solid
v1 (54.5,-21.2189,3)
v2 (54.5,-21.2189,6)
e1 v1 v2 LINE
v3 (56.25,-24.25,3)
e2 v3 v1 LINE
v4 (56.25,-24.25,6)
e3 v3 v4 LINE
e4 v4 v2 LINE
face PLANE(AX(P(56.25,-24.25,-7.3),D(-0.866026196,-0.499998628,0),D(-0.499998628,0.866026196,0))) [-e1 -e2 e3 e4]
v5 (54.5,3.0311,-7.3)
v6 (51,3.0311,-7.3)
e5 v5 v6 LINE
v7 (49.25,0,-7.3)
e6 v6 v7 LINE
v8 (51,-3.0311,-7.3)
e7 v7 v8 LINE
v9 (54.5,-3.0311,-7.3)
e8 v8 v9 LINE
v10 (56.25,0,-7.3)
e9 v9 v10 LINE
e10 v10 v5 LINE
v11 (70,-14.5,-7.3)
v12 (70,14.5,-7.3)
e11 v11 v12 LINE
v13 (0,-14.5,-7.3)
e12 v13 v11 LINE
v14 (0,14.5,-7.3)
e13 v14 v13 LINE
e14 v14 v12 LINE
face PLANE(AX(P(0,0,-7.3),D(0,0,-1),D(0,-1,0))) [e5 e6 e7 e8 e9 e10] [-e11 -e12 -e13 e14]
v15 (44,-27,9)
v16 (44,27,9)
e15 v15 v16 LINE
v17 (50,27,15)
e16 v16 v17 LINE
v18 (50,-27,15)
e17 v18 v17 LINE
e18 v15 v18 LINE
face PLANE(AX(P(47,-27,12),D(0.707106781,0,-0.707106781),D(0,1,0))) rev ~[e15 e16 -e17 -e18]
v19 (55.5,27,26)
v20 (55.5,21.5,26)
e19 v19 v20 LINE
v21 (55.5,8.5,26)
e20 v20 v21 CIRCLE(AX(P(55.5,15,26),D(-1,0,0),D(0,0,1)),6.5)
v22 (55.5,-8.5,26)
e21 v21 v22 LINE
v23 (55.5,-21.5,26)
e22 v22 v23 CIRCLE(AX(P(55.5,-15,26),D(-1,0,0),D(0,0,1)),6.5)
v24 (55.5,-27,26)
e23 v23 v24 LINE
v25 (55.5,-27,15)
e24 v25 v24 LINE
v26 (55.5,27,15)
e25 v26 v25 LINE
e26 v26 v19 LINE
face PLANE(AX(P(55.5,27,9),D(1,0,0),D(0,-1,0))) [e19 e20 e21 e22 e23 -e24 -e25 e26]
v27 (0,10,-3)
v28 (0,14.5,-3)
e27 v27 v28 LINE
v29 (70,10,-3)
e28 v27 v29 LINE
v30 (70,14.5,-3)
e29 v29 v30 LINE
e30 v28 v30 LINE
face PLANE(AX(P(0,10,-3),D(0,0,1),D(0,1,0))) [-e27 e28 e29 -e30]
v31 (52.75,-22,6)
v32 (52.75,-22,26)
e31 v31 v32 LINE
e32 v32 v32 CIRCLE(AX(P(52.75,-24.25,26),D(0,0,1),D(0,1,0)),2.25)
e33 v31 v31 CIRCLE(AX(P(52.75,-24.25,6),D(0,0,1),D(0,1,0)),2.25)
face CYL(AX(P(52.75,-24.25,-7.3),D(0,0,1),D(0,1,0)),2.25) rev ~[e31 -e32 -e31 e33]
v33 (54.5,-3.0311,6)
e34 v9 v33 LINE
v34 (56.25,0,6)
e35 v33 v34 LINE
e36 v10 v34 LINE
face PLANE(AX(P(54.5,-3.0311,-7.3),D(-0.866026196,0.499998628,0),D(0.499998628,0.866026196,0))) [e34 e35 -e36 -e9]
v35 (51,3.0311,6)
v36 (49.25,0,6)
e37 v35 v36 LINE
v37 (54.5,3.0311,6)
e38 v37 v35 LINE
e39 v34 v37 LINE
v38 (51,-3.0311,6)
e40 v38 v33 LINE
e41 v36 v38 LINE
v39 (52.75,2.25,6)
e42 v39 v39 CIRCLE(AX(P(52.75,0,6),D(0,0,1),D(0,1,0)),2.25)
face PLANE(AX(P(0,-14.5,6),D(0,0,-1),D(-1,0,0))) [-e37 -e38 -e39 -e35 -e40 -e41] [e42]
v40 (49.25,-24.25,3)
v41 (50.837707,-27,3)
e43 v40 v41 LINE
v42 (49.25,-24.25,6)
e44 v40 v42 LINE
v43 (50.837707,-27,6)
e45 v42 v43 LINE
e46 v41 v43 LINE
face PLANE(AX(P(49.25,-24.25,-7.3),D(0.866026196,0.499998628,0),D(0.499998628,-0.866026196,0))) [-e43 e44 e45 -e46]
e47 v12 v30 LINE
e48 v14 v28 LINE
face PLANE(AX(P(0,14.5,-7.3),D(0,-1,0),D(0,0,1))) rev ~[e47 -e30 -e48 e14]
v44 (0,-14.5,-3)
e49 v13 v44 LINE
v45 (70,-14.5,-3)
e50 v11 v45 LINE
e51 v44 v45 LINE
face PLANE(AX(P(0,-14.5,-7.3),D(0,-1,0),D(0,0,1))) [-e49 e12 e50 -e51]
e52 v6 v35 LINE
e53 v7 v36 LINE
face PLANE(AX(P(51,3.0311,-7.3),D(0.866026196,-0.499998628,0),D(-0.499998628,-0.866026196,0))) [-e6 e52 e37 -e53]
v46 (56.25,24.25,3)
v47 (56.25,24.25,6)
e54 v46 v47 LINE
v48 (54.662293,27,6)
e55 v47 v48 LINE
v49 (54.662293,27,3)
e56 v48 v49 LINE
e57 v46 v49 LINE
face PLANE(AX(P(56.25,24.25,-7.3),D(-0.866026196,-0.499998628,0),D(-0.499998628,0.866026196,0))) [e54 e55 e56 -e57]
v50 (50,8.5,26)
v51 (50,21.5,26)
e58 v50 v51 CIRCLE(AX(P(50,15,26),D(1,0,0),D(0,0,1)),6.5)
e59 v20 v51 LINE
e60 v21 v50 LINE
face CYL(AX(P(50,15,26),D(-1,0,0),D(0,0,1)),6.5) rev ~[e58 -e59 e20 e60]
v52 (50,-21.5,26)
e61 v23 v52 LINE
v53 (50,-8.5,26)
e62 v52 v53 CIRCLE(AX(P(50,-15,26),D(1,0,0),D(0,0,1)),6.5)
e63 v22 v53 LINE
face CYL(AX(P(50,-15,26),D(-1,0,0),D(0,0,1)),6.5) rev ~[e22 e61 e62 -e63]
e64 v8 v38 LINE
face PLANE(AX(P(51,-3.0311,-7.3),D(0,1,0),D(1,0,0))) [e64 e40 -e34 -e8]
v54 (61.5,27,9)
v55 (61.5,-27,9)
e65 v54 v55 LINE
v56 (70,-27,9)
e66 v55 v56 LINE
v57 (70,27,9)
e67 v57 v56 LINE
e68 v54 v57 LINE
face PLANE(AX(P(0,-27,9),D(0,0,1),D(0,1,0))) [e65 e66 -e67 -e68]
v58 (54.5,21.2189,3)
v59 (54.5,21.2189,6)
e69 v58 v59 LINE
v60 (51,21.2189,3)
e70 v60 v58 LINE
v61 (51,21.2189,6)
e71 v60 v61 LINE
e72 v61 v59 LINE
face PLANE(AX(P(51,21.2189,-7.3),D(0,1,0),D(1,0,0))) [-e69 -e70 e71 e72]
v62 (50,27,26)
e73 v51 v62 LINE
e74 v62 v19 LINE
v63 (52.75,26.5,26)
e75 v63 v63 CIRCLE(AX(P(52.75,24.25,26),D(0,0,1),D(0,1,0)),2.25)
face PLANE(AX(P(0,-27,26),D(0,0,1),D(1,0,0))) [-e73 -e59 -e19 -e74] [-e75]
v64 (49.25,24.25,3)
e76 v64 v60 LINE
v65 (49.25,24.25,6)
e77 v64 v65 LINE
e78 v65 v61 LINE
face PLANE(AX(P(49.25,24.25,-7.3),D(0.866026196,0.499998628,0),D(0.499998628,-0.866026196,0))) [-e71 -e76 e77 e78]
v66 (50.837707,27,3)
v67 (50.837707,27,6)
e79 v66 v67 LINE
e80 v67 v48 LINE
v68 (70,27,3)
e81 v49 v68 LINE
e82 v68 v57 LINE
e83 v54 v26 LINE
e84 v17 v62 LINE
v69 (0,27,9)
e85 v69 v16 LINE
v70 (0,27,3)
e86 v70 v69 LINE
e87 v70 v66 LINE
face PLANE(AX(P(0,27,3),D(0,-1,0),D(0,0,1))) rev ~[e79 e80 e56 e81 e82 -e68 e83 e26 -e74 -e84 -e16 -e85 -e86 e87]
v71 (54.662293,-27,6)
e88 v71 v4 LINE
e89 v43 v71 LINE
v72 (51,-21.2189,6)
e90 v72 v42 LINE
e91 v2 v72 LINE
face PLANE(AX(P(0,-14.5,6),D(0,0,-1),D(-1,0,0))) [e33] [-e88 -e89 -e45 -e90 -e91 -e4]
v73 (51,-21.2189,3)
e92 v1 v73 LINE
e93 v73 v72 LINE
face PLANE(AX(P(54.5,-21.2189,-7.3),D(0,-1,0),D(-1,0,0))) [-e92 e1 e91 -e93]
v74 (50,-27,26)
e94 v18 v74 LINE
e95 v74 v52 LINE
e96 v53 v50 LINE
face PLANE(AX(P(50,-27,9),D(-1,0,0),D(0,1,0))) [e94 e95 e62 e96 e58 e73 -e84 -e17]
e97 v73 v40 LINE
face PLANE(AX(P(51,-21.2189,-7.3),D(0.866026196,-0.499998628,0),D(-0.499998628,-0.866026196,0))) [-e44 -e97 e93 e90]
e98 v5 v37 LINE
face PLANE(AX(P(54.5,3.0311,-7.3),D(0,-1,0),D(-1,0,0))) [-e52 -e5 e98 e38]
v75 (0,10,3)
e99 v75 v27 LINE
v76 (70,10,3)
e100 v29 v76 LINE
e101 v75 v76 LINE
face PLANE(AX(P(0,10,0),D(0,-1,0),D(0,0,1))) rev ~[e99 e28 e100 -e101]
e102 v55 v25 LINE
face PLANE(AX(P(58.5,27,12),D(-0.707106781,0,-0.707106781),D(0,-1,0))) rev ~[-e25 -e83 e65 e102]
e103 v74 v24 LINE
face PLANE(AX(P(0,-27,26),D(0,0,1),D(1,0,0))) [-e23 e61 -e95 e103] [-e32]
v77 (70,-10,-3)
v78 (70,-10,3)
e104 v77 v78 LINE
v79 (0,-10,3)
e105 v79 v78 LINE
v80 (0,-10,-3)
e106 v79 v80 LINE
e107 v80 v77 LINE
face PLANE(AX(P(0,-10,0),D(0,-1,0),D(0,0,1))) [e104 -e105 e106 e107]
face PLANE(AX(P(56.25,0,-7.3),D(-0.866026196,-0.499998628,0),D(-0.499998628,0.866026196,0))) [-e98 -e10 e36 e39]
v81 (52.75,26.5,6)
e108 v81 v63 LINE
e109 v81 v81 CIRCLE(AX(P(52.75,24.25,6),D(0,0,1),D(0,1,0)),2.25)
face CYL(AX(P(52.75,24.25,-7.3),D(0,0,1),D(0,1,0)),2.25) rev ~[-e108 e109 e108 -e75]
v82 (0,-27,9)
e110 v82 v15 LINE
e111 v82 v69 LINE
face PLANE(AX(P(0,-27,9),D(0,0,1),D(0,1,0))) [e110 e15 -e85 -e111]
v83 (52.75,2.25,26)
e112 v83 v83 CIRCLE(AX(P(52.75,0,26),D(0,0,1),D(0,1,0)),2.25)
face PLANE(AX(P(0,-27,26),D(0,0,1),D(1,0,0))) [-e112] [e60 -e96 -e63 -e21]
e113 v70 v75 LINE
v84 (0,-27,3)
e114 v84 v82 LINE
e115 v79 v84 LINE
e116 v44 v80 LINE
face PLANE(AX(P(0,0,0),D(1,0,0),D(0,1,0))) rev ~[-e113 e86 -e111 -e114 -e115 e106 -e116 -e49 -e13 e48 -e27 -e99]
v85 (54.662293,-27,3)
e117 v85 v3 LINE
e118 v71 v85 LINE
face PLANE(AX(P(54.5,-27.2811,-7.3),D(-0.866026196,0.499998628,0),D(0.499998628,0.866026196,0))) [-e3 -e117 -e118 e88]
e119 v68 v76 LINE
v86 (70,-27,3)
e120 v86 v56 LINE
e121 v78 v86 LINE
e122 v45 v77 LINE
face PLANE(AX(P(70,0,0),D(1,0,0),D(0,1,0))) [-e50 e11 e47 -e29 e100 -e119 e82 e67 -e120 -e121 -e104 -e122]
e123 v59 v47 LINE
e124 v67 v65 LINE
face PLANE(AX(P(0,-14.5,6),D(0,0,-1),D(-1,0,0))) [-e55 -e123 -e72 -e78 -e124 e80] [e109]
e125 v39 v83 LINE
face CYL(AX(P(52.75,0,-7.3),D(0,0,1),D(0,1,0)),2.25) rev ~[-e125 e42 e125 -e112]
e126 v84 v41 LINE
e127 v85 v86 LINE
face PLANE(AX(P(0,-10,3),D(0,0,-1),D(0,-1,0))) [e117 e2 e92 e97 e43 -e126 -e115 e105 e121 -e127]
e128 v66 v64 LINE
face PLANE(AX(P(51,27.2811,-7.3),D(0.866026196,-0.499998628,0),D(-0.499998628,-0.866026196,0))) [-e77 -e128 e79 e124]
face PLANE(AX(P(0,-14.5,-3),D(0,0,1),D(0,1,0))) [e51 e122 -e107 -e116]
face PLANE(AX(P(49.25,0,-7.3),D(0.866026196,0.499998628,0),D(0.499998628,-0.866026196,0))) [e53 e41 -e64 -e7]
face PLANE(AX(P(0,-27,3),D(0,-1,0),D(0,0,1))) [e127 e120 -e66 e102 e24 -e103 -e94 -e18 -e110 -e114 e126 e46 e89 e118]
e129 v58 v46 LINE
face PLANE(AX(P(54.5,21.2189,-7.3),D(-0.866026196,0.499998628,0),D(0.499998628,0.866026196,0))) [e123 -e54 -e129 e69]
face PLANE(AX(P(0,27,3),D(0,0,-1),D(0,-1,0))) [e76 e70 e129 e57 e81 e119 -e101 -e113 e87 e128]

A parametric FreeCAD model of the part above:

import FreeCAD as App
import Part
import Sketcher

V = App.Vector
Q = App.Units.Quantity


def edges_at(feature, points):
    """Names of the edges that pass closest to the given points."""
    edges = feature.Shape.Edges
    near = lambda p: min(range(len(edges)), key=lambda i: edges[i].distToShape(Part.Vertex(*p))[0])
    return sorted({f"Edge{near(p) + 1}" for p in points})

doc = App.newDocument("Part")
body = doc.addObject("PartDesign::Body", "Body")

# Sketch on YZ plane
sketch1 = doc.addObject("Sketcher::SketchObject", "Sketch")
body.addObject(sketch1)
sketch1.AttachmentSupport = (doc.YZ_Plane, [""])
sketch1.MapMode = "FlatFace"
sketch1.addGeometry([
    Part.LineSegment(V(-10, 3, 0), V(-10, -3, 0)),  # 0
    Part.LineSegment(V(-10, -3, 0), V(-14.5, -3, 0)),  # 1
    Part.LineSegment(V(-14.5, -3, 0), V(-14.5, -7.3, 0)),  # 2
    Part.LineSegment(V(-14.5, -7.3, 0), V(14.5, -7.3, 0)),  # 3
    Part.LineSegment(V(14.5, -7.3, 0), V(14.5, -3, 0)),  # 4
    Part.LineSegment(V(14.5, -3, 0), V(10, -3, 0)),  # 5
    Part.LineSegment(V(10, -3, 0), V(10, 3, 0)),  # 6
    Part.LineSegment(V(10, 3, 0), V(27, 3, 0)),  # 7
    Part.LineSegment(V(27, 3, 0), V(27, 9, 0)),  # 8
    Part.LineSegment(V(27, 9, 0), V(-27, 9, 0)),  # 9
    Part.LineSegment(V(-27, 9, 0), V(-27, 3, 0)),  # 10
    Part.LineSegment(V(-27, 3, 0), V(-10, 3, 0)),  # 11
], False)
sketch1.addConstraint([
    Sketcher.Constraint("Coincident", 0, 2, 1, 1),
    Sketcher.Constraint("Coincident", 1, 2, 2, 1),
    Sketcher.Constraint("Coincident", 2, 2, 3, 1),
    Sketcher.Constraint("Coincident", 3, 2, 4, 1),
    Sketcher.Constraint("Coincident", 4, 2, 5, 1),
    Sketcher.Constraint("Coincident", 5, 2, 6, 1),
    Sketcher.Constraint("Coincident", 6, 2, 7, 1),
    Sketcher.Constraint("Coincident", 7, 2, 8, 1),
    Sketcher.Constraint("Coincident", 8, 2, 9, 1),
    Sketcher.Constraint("Coincident", 9, 2, 10, 1),
    Sketcher.Constraint("Coincident", 10, 2, 11, 1),
    Sketcher.Constraint("Coincident", 11, 2, 0, 1),
    Sketcher.Constraint("Vertical", 0),
    Sketcher.Constraint("Horizontal", 1),
    Sketcher.Constraint("Vertical", 2),
    Sketcher.Constraint("Horizontal", 3),
    Sketcher.Constraint("Vertical", 4),
    Sketcher.Constraint("Horizontal", 5),
    Sketcher.Constraint("Vertical", 6),
    Sketcher.Constraint("Horizontal", 7),
    Sketcher.Constraint("Vertical", 8),
    Sketcher.Constraint("Horizontal", 9),
    Sketcher.Constraint("Vertical", 10),
    Sketcher.Constraint("Horizontal", 11),
    Sketcher.Constraint("Symmetric", 0, 2, 6, 2, -1, 1),
    Sketcher.Constraint("Symmetric", 1, 2, 4, 2, -2),
    Sketcher.Constraint("Symmetric", 7, 2, 10, 2, -2),
    Sketcher.Constraint("Equal", 6, 8),
    Sketcher.Constraint("DistanceY", 0, 2, 0, 1, 6.0),
    Sketcher.Constraint("DistanceY", 2, 2, 2, 1, 4.3),
    Sketcher.Constraint("DistanceX", 0, 2, -1, 1, 10.0),
    Sketcher.Constraint("DistanceX", -1, 1, 7, 2, 27.0),
    Sketcher.Constraint("DistanceX", 1, 2, -1, 1, 14.5),
])
pad1 = doc.addObject("PartDesign::Pad", "Pad")
body.addObject(pad1)
pad1.Profile = sketch1
pad1.Length = 70

# Sketch on XY plane
sketch2 = doc.addObject("Sketcher::SketchObject", "Sketch001")
body.addObject(sketch2)
sketch2.AttachmentSupport = (doc.XY_Plane, [""])
sketch2.MapMode = "FlatFace"
sketch2.AttachmentOffset = App.Placement(V(0, 0, 9), App.Rotation())
sketch2.addGeometry([
    Part.LineSegment(V(50, 27, 0), V(50, -27, 0)),
    Part.LineSegment(V(50, -27, 0), V(56, -27, 0)),
    Part.LineSegment(V(56, -27, 0), V(56, 27, 0)),
    Part.LineSegment(V(56, 27, 0), V(50, 27, 0)),
], False)
sketch2.addConstraint([
    Sketcher.Constraint("Coincident", 0, 2, 1, 1),
    Sketcher.Constraint("Coincident", 1, 2, 2, 1),
    Sketcher.Constraint("Coincident", 2, 2, 3, 1),
    Sketcher.Constraint("Coincident", 3, 2, 0, 1),
    Sketcher.Constraint("Vertical", 0),
    Sketcher.Constraint("Horizontal", 1),
    Sketcher.Constraint("Vertical", 2),
    Sketcher.Constraint("Horizontal", 3),
    Sketcher.Constraint("DistanceX", 1, 1, 1, 2, 5.5),
    Sketcher.Constraint("DistanceY", 0, 2, 0, 1, 54.0),
    Sketcher.Constraint("DistanceX", -1, 1, 0, 2, 50.0),
    Sketcher.Constraint("DistanceY", 0, 2, -1, 1, 27.0),
])
pad2 = doc.addObject("PartDesign::Pad", "Pad001")
body.addObject(pad2)
pad2.Profile = sketch2
pad2.Length = 17

# Sketch on YZ plane
sketch3 = doc.addObject("Sketcher::SketchObject", "Sketch002")
body.addObject(sketch3)
sketch3.AttachmentSupport = (doc.YZ_Plane, [""])
sketch3.MapMode = "FlatFace"
sketch3.AttachmentOffset = App.Placement(V(0, 0, 50), App.Rotation())
sketch3.addGeometry([
    Part.Circle(V(15, 26, 0), V(0, 0, 1), 6),
    Part.Circle(V(-15, 26, 0), V(0, 0, 1), 6),
], False)
sketch3.addConstraint([
    Sketcher.Constraint("Equal", 0, 1),
    Sketcher.Constraint("Symmetric", 0, 3, 1, 3, -2),
    Sketcher.Constraint("Diameter", 0, 13.0),
    Sketcher.Constraint("DistanceX", 1, 3, 0, 3, 30.0),
    Sketcher.Constraint("DistanceY", -1, 1, 0, 3, 26.0),
])
pocket1 = doc.addObject("PartDesign::Pocket", "Pocket")
body.addObject(pocket1)
pocket1.Profile = sketch3
pocket1.Length = 5.5
pocket1.Reversed = True

# Sketch on XY plane
sketch4 = doc.addObject("Sketcher::SketchObject", "Sketch003")
body.addObject(sketch4)
sketch4.AttachmentSupport = (doc.XY_Plane, [""])
sketch4.MapMode = "FlatFace"
sketch4.AttachmentOffset = App.Placement(V(0, 0, -7.3), App.Rotation())
sketch4.addGeometry([
    Part.Circle(V(52.8, -24.2, 0), V(0, 0, 1), 2.2),
    Part.Circle(V(52.8, 0, 0), V(0, 0, 1), 2.2),
    Part.Circle(V(52.8, 24.2, 0), V(0, 0, 1), 2.2),
], False)
sketch4.addConstraint([
    Sketcher.Constraint("Equal", 0, 1),
    Sketcher.Constraint("Equal", 1, 2),
    Sketcher.Constraint("Symmetric", 0, 3, 2, 3, -1),
    Sketcher.Constraint("PointOnObject", 1, 3, -1),
    Sketcher.Constraint("Vertical", 0, 3, 1, 3),
    Sketcher.Constraint("Diameter", 0, 4.5),
    Sketcher.Constraint("DistanceY", 0, 3, 2, 3, 48.5),
    Sketcher.Constraint("DistanceX", -1, 1, 0, 3, 52.75),
])
doc.recompute()
hole = doc.addObject("PartDesign::Hole", "Hole")
body.addObject(hole)
hole.Profile = sketch4
hole.ThreadType = "None"
hole.Diameter = 4.5
hole.DepthType = "ThroughAll"
hole.Reversed = True

# Sketch on XY plane
sketch5 = doc.addObject("Sketcher::SketchObject", "Sketch004")
body.addObject(sketch5)
sketch5.AttachmentSupport = (doc.XY_Plane, [""])
sketch5.MapMode = "FlatFace"
sketch5.AttachmentOffset = App.Placement(V(0, 0, -7.3), App.Rotation())
sketch5.addGeometry([
    Part.LineSegment(V(54.5, 3, 0), V(56.2, 0, 0)),  # 0
    Part.LineSegment(V(56.2, 0, 0), V(54.5, -3, 0)),  # 1
    Part.LineSegment(V(54.5, -3, 0), V(51, -3, 0)),  # 2
    Part.LineSegment(V(51, -3, 0), V(49.2, 0, 0)),  # 3
    Part.LineSegment(V(49.2, 0, 0), V(51, 3, 0)),  # 4
    Part.LineSegment(V(51, 3, 0), V(54.5, 3, 0)),  # 5
    Part.Circle(V(52.8, 0, 0), V(0, 0, 1), 2.2),  # 6
    Part.LineSegment(V(54.5, 27.3, 0), V(56.2, 24.2, 0)),  # 7
    Part.LineSegment(V(56.2, 24.2, 0), V(54.5, 21.2, 0)),  # 8
    Part.LineSegment(V(54.5, 21.2, 0), V(51, 21.2, 0)),  # 9
    Part.LineSegment(V(51, 21.2, 0), V(49.2, 24.2, 0)),  # 10
    Part.LineSegment(V(49.2, 24.2, 0), V(51, 27.3, 0)),  # 11
    Part.LineSegment(V(51, 27.3, 0), V(54.5, 27.3, 0)),  # 12
    Part.Circle(V(52.8, 24.2, 0), V(0, 0, 1), 2.2),  # 13
    Part.LineSegment(V(54.5, -21.2, 0), V(56.2, -24.2, 0)),  # 14
    Part.LineSegment(V(56.2, -24.2, 0), V(54.5, -27.3, 0)),  # 15
    Part.LineSegment(V(54.5, -27.3, 0), V(51, -27.3, 0)),  # 16
    Part.LineSegment(V(51, -27.3, 0), V(49.2, -24.2, 0)),  # 17
    Part.LineSegment(V(49.2, -24.2, 0), V(51, -21.2, 0)),  # 18
    Part.LineSegment(V(51, -21.2, 0), V(54.5, -21.2, 0)),  # 19
    Part.Circle(V(52.8, -24.2, 0), V(0, 0, 1), 2.2),  # 20
], False)
sketch5.addConstraint([
    Sketcher.Constraint("Coincident", 0, 2, 1, 1),
    Sketcher.Constraint("Coincident", 1, 2, 2, 1),
    Sketcher.Constraint("Coincident", 2, 2, 3, 1),
    Sketcher.Constraint("Coincident", 3, 2, 4, 1),
    Sketcher.Constraint("Coincident", 4, 2, 5, 1),
    Sketcher.Constraint("Coincident", 5, 2, 0, 1),
    Sketcher.Constraint("Coincident", 7, 2, 8, 1),
    Sketcher.Constraint("Coincident", 8, 2, 9, 1),
    Sketcher.Constraint("Coincident", 9, 2, 10, 1),
    Sketcher.Constraint("Coincident", 10, 2, 11, 1),
    Sketcher.Constraint("Coincident", 11, 2, 12, 1),
    Sketcher.Constraint("Coincident", 12, 2, 7, 1),
    Sketcher.Constraint("Coincident", 14, 2, 15, 1),
    Sketcher.Constraint("Coincident", 15, 2, 16, 1),
    Sketcher.Constraint("Coincident", 16, 2, 17, 1),
    Sketcher.Constraint("Coincident", 17, 2, 18, 1),
    Sketcher.Constraint("Coincident", 18, 2, 19, 1),
    Sketcher.Constraint("Coincident", 19, 2, 14, 1),
    Sketcher.Constraint("Horizontal", 2),
    Sketcher.Constraint("Horizontal", 5),
    Sketcher.Constraint("Horizontal", 9),
    Sketcher.Constraint("Horizontal", 12),
    Sketcher.Constraint("Horizontal", 16),
    Sketcher.Constraint("Horizontal", 19),
    Sketcher.Constraint("Equal", 6, 13),
    Sketcher.Constraint("Equal", 13, 20),
    Sketcher.Constraint("Symmetric", 13, 3, 20, 3, -1),
    Sketcher.Constraint("Symmetric", 2, 2, 4, 2, -1),
    Sketcher.Constraint("Symmetric", 7, 2, 14, 2, -1),
    Sketcher.Constraint("Symmetric", 12, 2, 15, 2, -1),
    Sketcher.Constraint("Symmetric", 10, 2, 17, 2, -1),
    Sketcher.Constraint("Symmetric", 9, 2, 18, 2, -1),
    Sketcher.Constraint("PointOnObject", 6, 3, -1),
    Sketcher.Constraint("PointOnObject", 0, 2, -1),
    Sketcher.Constraint("PointOnObject", 3, 2, -1),
    Sketcher.Constraint("Parallel", 0, 3),
    Sketcher.Constraint("Parallel", 1, 4),
    Sketcher.Constraint("Parallel", 3, 7),
    Sketcher.Constraint("Parallel", 4, 8),
    Sketcher.Constraint("Parallel", 7, 10),
    Sketcher.Constraint("Parallel", 8, 11),
    Sketcher.Constraint("Parallel", 10, 14),
    Sketcher.Constraint("Parallel", 14, 17),
    Sketcher.Constraint("Horizontal", 13, 3, 7, 2),
    Sketcher.Constraint("Horizontal", 7, 2, 10, 2),
    Sketcher.Constraint("Vertical", 6, 3, 13, 3),
    Sketcher.Constraint("Vertical", 0, 2, 7, 2),
    Sketcher.Constraint("Vertical", 5, 2, 8, 2),
    Sketcher.Constraint("Vertical", 4, 2, 9, 2),
    Sketcher.Constraint("Vertical", 9, 2, 11, 2),
    Sketcher.Constraint("DistanceX", 3, 2, 0, 2, 7.0),
    Sketcher.Constraint("Diameter", 6, 4.5),
    Sketcher.Constraint("Angle", 0, Q("-60 deg")),
    Sketcher.Constraint("DistanceX", 2, 2, 2, 1, 3.5),
    Sketcher.Constraint("DistanceX", -1, 1, 2, 2, 51.0),
    Sketcher.Constraint("DistanceY", 20, 3, 13, 3, 48.5),
    Sketcher.Constraint("DistanceX", 6, 3, 0, 2, 3.5),
])
pocket2 = doc.addObject("PartDesign::Pocket", "Pocket001")
body.addObject(pocket2)
pocket2.Profile = sketch5
pocket2.Length = 13.3
pocket2.Reversed = True
doc.recompute()

chamfer = doc.addObject("PartDesign::Chamfer", "Chamfer")
body.addObject(chamfer)
chamfer.Base = (pocket2, edges_at(pocket2, [(50, 0, 9), (55.5, 0, 9)]))
chamfer.Size = 6

doc.recompute()
